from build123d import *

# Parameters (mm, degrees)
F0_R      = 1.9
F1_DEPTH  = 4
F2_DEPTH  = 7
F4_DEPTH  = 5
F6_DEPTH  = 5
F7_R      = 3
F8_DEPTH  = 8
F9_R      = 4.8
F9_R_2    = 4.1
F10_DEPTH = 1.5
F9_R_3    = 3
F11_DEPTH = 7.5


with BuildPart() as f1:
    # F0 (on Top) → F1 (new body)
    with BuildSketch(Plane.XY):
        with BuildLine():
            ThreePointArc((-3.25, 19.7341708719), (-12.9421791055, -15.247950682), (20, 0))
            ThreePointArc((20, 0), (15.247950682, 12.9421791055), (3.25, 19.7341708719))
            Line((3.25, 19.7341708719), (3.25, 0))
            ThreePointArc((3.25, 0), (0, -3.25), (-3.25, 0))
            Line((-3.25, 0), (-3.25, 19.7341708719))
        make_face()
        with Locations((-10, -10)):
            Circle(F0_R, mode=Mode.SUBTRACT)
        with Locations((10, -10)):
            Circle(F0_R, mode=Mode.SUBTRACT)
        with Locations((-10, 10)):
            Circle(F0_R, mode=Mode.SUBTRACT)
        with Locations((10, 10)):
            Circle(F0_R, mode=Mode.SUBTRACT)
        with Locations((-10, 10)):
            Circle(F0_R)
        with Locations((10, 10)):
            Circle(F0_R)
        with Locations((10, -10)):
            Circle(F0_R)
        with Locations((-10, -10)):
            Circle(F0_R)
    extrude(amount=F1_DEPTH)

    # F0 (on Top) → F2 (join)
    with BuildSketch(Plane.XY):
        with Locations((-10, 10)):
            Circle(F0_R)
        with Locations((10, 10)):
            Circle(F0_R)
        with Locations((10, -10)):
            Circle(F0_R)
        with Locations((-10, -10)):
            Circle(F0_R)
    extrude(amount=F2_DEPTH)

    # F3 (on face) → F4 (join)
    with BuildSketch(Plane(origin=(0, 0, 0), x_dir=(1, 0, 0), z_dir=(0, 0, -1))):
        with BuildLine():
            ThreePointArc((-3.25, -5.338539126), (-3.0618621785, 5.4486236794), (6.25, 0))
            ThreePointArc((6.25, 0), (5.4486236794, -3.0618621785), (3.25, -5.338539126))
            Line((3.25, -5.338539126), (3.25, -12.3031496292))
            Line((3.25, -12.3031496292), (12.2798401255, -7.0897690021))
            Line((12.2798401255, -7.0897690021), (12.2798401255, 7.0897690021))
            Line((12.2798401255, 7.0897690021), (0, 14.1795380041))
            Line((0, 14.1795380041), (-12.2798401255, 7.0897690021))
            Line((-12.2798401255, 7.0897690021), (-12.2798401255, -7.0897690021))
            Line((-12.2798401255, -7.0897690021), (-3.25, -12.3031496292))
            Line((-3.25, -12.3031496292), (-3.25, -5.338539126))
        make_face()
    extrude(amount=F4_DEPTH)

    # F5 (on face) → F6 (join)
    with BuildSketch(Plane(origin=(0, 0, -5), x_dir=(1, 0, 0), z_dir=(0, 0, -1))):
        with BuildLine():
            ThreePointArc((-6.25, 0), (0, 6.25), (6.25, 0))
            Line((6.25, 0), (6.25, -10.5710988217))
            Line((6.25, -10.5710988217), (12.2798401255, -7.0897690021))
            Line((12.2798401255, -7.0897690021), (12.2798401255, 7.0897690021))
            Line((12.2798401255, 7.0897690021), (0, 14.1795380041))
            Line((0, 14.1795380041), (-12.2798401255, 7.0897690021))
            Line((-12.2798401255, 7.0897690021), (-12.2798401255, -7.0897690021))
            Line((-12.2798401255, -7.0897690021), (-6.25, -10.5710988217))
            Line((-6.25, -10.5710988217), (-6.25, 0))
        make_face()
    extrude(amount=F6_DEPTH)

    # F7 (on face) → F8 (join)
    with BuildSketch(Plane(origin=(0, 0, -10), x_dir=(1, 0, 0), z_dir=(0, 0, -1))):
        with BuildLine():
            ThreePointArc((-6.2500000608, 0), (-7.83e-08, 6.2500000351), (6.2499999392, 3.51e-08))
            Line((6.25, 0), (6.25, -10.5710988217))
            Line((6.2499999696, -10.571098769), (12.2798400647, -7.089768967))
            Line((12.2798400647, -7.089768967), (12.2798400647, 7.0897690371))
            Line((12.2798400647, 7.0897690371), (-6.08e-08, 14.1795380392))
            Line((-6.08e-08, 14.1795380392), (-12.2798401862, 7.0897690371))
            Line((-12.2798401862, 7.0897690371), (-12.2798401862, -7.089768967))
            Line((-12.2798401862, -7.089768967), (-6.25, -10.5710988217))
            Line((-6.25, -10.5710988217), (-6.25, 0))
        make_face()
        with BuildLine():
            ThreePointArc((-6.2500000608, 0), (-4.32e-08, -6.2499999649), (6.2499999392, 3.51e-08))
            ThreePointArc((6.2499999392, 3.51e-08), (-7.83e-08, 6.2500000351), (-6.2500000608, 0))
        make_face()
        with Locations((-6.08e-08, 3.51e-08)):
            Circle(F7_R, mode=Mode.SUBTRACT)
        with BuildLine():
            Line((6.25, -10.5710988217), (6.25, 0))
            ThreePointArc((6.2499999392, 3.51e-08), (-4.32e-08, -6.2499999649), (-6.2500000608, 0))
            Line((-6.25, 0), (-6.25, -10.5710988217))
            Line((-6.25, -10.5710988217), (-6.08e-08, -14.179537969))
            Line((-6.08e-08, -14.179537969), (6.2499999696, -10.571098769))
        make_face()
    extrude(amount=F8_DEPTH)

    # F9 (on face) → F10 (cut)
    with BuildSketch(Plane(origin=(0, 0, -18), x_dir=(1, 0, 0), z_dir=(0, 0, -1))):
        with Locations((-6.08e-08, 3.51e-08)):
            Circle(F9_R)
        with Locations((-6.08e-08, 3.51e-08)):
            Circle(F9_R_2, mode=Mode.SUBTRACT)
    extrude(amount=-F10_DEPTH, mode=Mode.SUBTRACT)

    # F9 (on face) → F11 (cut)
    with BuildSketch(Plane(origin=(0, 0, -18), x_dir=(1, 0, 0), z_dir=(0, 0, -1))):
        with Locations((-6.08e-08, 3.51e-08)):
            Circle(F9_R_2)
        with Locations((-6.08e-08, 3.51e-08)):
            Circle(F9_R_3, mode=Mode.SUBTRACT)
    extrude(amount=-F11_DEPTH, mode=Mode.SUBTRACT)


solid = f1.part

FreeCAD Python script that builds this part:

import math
import FreeCAD as App
import Part
import Sketcher
Q = App.Units.Quantity

doc = App.newDocument("Part")
body = doc.addObject("PartDesign::Body", "Body")

sketch1 = body.newObject("Sketcher::SketchObject", "Sketch")
sketch1.AttachmentSupport = (doc.getObject("XY_Plane"), [""])
sketch1.MapMode = "FlatFace"
sketch1.addGeometry([
    Part.ArcOfCircle(Part.Circle(App.Vector(0, 0, 0), App.Vector(0, 0, 1), 20), math.radians(99), math.radians(360)),
    Part.ArcOfCircle(Part.Circle(App.Vector(0, 0, 0), App.Vector(0, 0, 1), 20), math.radians(0), math.radians(81)),
    Part.LineSegment(App.Vector(3.2, 19.7, 0), App.Vector(3.2, 0, 0)),
    Part.ArcOfCircle(Part.Circle(App.Vector(0, 0, 0), App.Vector(0, 0, 1), 3.2), math.radians(180), math.radians(360)),
    Part.LineSegment(App.Vector(-3.2, 0, 0), App.Vector(-3.2, 19.7, 0)),
], False)
sketch1.addConstraint([
    Sketcher.Constraint("Tangent", 0, 2, 1, 1),
    Sketcher.Constraint("Coincident", 1, 2, 2, 1),
    Sketcher.Constraint("Tangent", 2, 2, 3, 2),
    Sketcher.Constraint("Tangent", 3, 1, 4, 1),
    Sketcher.Constraint("Coincident", 4, 2, 0, 1),
    Sketcher.Constraint("Vertical", 2),
    Sketcher.Constraint("Vertical", 4),
    Sketcher.Constraint("Coincident", 0, 3, -1, 1),
    Sketcher.Constraint("Coincident", 3, 3, -1, 1),
    Sketcher.Constraint("Equal", 0, 1),
    Sketcher.Constraint("PointOnObject", 0, 2, -1),
    Sketcher.Constraint("Radius", 0, Q("20 mm")),
    Sketcher.Constraint("Radius", 3, Q("3.25 mm")),
])
pad1 = body.newObject("PartDesign::Pad", "Pad")
pad1.Profile = sketch1
pad1.Length = 4

sketch2 = body.newObject("Sketcher::SketchObject", "Sketch001")
sketch2.AttachmentSupport = (doc.getObject("XY_Plane"), [""])
sketch2.MapMode = "FlatFace"
sketch2.addGeometry([
    Part.Circle(App.Vector(-10, 10, 0), App.Vector(0, 0, 1), 1.9),
    Part.Circle(App.Vector(10, 10, 0), App.Vector(0, 0, 1), 1.9),
    Part.Circle(App.Vector(10, -10, 0), App.Vector(0, 0, 1), 1.9),
    Part.Circle(App.Vector(-10, -10, 0), App.Vector(0, 0, 1), 1.9),
], False)
sketch2.addConstraint([
    Sketcher.Constraint("Equal", 0, 1),
    Sketcher.Constraint("Equal", 1, 2),
    Sketcher.Constraint("Equal", 2, 3),
    Sketcher.Constraint("Symmetric", 0, 3, 2, 3, -1, 1),
    Sketcher.Constraint("Symmetric", 1, 3, 3, 3, -1, 1),
    Sketcher.Constraint("Symmetric", 0, 3, 1, 3, -2),
    Sketcher.Constraint("Diameter", 0, Q("3.8 mm")),
    Sketcher.Constraint("DistanceX", 0, 3, -1, 1, Q("10 mm")),
    Sketcher.Constraint("DistanceY", -1, 1, 0, 3, Q("10 mm")),
])
pad2 = body.newObject("PartDesign::Pad", "Pad001")
pad2.Profile = sketch2
pad2.Length = 7

sketch3 = body.newObject("Sketcher::SketchObject", "Sketch002")
sketch3.AttachmentSupport = (doc.getObject("XY_Plane"), [""])
sketch3.MapMode = "FlatFace"
sketch3.addGeometry([
    Part.ArcOfCircle(Part.Circle(App.Vector(0, 0, 0), App.Vector(0, 0, 1), 6), math.radians(121), math.radians(360)),
    Part.ArcOfCircle(Part.Circle(App.Vector(0, 0, 0), App.Vector(0, 0, 1), 6), math.radians(0), math.radians(59)),
    Part.LineSegment(App.Vector(3, 5, 0), App.Vector(3, 12, 0)),
    Part.LineSegment(App.Vector(3, 12, 0), App.Vector(12, 7, 0)),
    Part.LineSegment(App.Vector(12, 7, 0), App.Vector(12, -7, 0)),
    Part.LineSegment(App.Vector(12, -7, 0), App.Vector(0, -14, 0)),
    Part.LineSegment(App.Vector(0, -14, 0), App.Vector(-12, -7, 0)),
    Part.LineSegment(App.Vector(-12, -7, 0), App.Vector(-12, 7, 0)),
    Part.LineSegment(App.Vector(-12, 7, 0), App.Vector(-3, 12, 0)),
    Part.LineSegment(App.Vector(-3, 12, 0), App.Vector(-3, 5, 0)),
], False)
sketch3.addConstraint([
    Sketcher.Constraint("Tangent", 0, 2, 1, 1),
    Sketcher.Constraint("Coincident", 1, 2, 2, 1),
    Sketcher.Constraint("Coincident", 2, 2, 3, 1),
    Sketcher.Constraint("Coincident", 3, 2, 4, 1),
    Sketcher.Constraint("Coincident", 4, 2, 5, 1),
    Sketcher.Constraint("Coincident", 5, 2, 6, 1),
    Sketcher.Constraint("Coincident", 6, 2, 7, 1),
    Sketcher.Constraint("Coincident", 7, 2, 8, 1),
    Sketcher.Constraint("Coincident", 8, 2, 9, 1),
    Sketcher.Constraint("Coincident", 9, 2, 0, 1),
    Sketcher.Constraint("Vertical", 2),
    Sketcher.Constraint("Vertical", 4),
    Sketcher.Constraint("Vertical", 7),
    Sketcher.Constraint("Vertical", 9),
    Sketcher.Constraint("Coincident", 0, 3, -1, 1),
    Sketcher.Constraint("Equal", 0, 1),
    Sketcher.Constraint("Symmetric", 3, 2, 6, 2, -1, 1),
    Sketcher.Constraint("Symmetric", 2, 2, 8, 2, -2),
    Sketcher.Constraint("PointOnObject", 0, 2, -1),
    Sketcher.Constraint("PointOnObject", 5, 2, -2),
    Sketcher.Constraint("Parallel", 3, 6),
    Sketcher.Constraint("Parallel", 5, 8),
    Sketcher.Constraint("Horizontal", 4, 2, 6, 2),
    Sketcher.Constraint("Angle", 3, Q("-30 deg")),
    Sketcher.Constraint("Radius", 0, Q("6.25 mm")),
    Sketcher.Constraint("DistanceX", 1, 2, 0, 2, Q("3 mm")),
    Sketcher.Constraint("DistanceY", 2, 1, 2, 2, Q("6.964611 mm")),
    Sketcher.Constraint("DistanceY", 4, 2, 4, 1, Q("14.179538 mm")),
])
pad3 = body.newObject("PartDesign::Pad", "Pad002")
pad3.Profile = sketch3
pad3.Length = 5
pad3.Reversed = True

sketch4 = body.newObject("Sketcher::SketchObject", "Sketch003")
sketch4.AttachmentSupport = (doc.getObject("XY_Plane"), [""])
sketch4.MapMode = "FlatFace"
sketch4.AttachmentOffset = App.Placement(App.Vector(0, 0, -5), App.Rotation())
sketch4.addGeometry([
    Part.ArcOfCircle(Part.Circle(App.Vector(0, 0, 0), App.Vector(0, 0, 1), 6), math.radians(180), math.radians(360)),
    Part.LineSegment(App.Vector(6, 0, 0), App.Vector(6, 11, 0)),
    Part.LineSegment(App.Vector(6, 11, 0), App.Vector(12, 7, 0)),
    Part.LineSegment(App.Vector(12, 7, 0), App.Vector(12, -7, 0)),
    Part.LineSegment(App.Vector(12, -7, 0), App.Vector(0, -14, 0)),
    Part.LineSegment(App.Vector(0, -14, 0), App.Vector(-12, -7, 0)),
    Part.LineSegment(App.Vector(-12, -7, 0), App.Vector(-12, 7, 0)),
    Part.LineSegment(App.Vector(-12, 7, 0), App.Vector(-6, 11, 0)),
    Part.LineSegment(App.Vector(-6, 11, 0), App.Vector(-6, 0, 0)),
], False)
sketch4.addConstraint([
    Sketcher.Constraint("Tangent", 0, 2, 1, 1),
    Sketcher.Constraint("Coincident", 1, 2, 2, 1),
    Sketcher.Constraint("Coincident", 2, 2, 3, 1),
    Sketcher.Constraint("Coincident", 3, 2, 4, 1),
    Sketcher.Constraint("Coincident", 4, 2, 5, 1),
    Sketcher.Constraint("Coincident", 5, 2, 6, 1),
    Sketcher.Constraint("Coincident", 6, 2, 7, 1),
    Sketcher.Constraint("Coincident", 7, 2, 8, 1),
    Sketcher.Constraint("Tangent", 8, 2, 0, 1),
    Sketcher.Constraint("Vertical", 1),
    Sketcher.Constraint("Vertical", 3),
    Sketcher.Constraint("Vertical", 6),
    Sketcher.Constraint("Vertical", 8),
    Sketcher.Constraint("Coincident", 0, 3, -1, 1),
    Sketcher.Constraint("Symmetric", 2, 2, 5, 2, -1, 1),
    Sketcher.Constraint("PointOnObject", 4, 2, -2),
    Sketcher.Constraint("Parallel", 2, 5),
    Sketcher.Constraint("Parallel", 4, 7),
    Sketcher.Constraint("Horizontal", 3, 2, 5, 2),
    Sketcher.Constraint("Horizontal", 2, 2, 6, 2),
    Sketcher.Constraint("Angle", 2, Q("-30 deg")),
    Sketcher.Constraint("Radius", 0, Q("6.25 mm")),
    Sketcher.Constraint("DistanceY", 1, 1, 1, 2, Q("10.571099 mm")),
    Sketcher.Constraint("DistanceY", 3, 2, 3, 1, Q("14.179538 mm")),
])
pad4 = body.newObject("PartDesign::Pad", "Pad003")
pad4.Profile = sketch4
pad4.Length = 5
pad4.Reversed = True

sketch5 = body.newObject("Sketcher::SketchObject", "Sketch004")
sketch5.AttachmentSupport = (doc.getObject("XY_Plane"), [""])
sketch5.MapMode = "FlatFace"
sketch5.AttachmentOffset = App.Placement(App.Vector(0, 0, -10), App.Rotation())
sketch5.addGeometry([
    Part.LineSegment(App.Vector(6.2, 10.6, 0), App.Vector(12.3, 7.1, 0)),
    Part.LineSegment(App.Vector(12.3, 7.1, 0), App.Vector(12.3, -7.1, 0)),
    Part.LineSegment(App.Vector(12.3, -7.1, 0), App.Vector(0, -14.2, 0)),
    Part.LineSegment(App.Vector(0, -14.2, 0), App.Vector(-12.3, -7.1, 0)),
    Part.LineSegment(App.Vector(-12.3, -7.1, 0), App.Vector(-12.3, 7.1, 0)),
    Part.LineSegment(App.Vector(-12.3, 7.1, 0), App.Vector(-6.2, 10.6, 0)),
    Part.LineSegment(App.Vector(-6.2, 10.6, 0), App.Vector(0, 14.2, 0)),
    Part.LineSegment(App.Vector(0, 14.2, 0), App.Vector(6.2, 10.6, 0)),
    Part.Circle(App.Vector(0, 0, 0), App.Vector(0, 0, 1), 3),
], False)
sketch5.addConstraint([
    Sketcher.Constraint("Coincident", 0, 2, 1, 1),
    Sketcher.Constraint("Coincident", 1, 2, 2, 1),
    Sketcher.Constraint("Coincident", 2, 2, 3, 1),
    Sketcher.Constraint("Coincident", 3, 2, 4, 1),
    Sketcher.Constraint("Coincident", 4, 2, 5, 1),
    Sketcher.Constraint("Coincident", 5, 2, 6, 1),
    Sketcher.Constraint("Coincident", 6, 2, 7, 1),
    Sketcher.Constraint("Coincident", 7, 2, 0, 1),
    Sketcher.Constraint("Vertical", 1),
    Sketcher.Constraint("Vertical", 4),
    Sketcher.Constraint("Coincident", 8, 3, -1, 1),
    Sketcher.Constraint("Symmetric", 0, 2, 3, 2, -1, 1),
    Sketcher.Constraint("Symmetric", 2, 2, 6, 2, -1, 1),
    Sketcher.Constraint("Symmetric", 5, 2, 7, 2, -2),
    Sketcher.Constraint("PointOnObject", 2, 2, -2),
    Sketcher.Constraint("Parallel", 0, 3),
    Sketcher.Constraint("Parallel", 2, 5),
    Sketcher.Constraint("Parallel", 5, 6),
    Sketcher.Constraint("Diameter", 8, Q("6 mm")),
    Sketcher.Constraint("Angle", 0, Q("-30 deg")),
    Sketcher.Constraint("DistanceX", 5, 2, 7, 2, Q("12.5 mm")),
    Sketcher.Constraint("DistanceY", 1, 2, 1, 1, Q("14.179538 mm")),
    Sketcher.Constraint("DistanceY", -1, 1, 5, 2, Q("10.571099 mm")),
])
pad5 = body.newObject("PartDesign::Pad", "Pad004")
pad5.Profile = sketch5
pad5.Length = 8
pad5.Reversed = True

sketch6 = body.newObject("Sketcher::SketchObject", "Sketch005")
sketch6.AttachmentSupport = (doc.getObject("XY_Plane"), [""])
sketch6.MapMode = "FlatFace"
sketch6.AttachmentOffset = App.Placement(App.Vector(0, 0, -18), App.Rotation())
sketch6.addGeometry([
    Part.Circle(App.Vector(0, 0, 0), App.Vector(0, 0, 1), 4.8),
    Part.Circle(App.Vector(0, 0, 0), App.Vector(0, 0, 1), 4.1),
], False)
sketch6.addConstraint([
    Sketcher.Constraint("Coincident", 0, 3, -1, 1),
    Sketcher.Constraint("Coincident", 1, 3, -1, 1),
    Sketcher.Constraint("Diameter", 0, Q("9.6 mm")),
    Sketcher.Constraint("Diameter", 1, Q("8.2 mm")),
])
pocket1 = body.newObject("PartDesign::Pocket", "Pocket")
pocket1.Profile = sketch6
pocket1.Length = 1.5
pocket1.Reversed = True

sketch7 = body.newObject("Sketcher::SketchObject", "Sketch006")
sketch7.AttachmentSupport = (doc.getObject("XY_Plane"), [""])
sketch7.MapMode = "FlatFace"
sketch7.AttachmentOffset = App.Placement(App.Vector(0, 0, -18), App.Rotation())
sketch7.addGeometry([
    Part.Circle(App.Vector(0, 0, 0), App.Vector(0, 0, 1), 4.1),
    Part.Circle(App.Vector(0, 0, 0), App.Vector(0, 0, 1), 3),
], False)
sketch7.addConstraint([
    Sketcher.Constraint("Coincident", 0, 3, -1, 1),
    Sketcher.Constraint("Coincident", 1, 3, -1, 1),
    Sketcher.Constraint("Diameter", 1, Q("6 mm")),
    Sketcher.Constraint("Diameter", 0, Q("8.2 mm")),
])
pocket2 = body.newObject("PartDesign::Pocket", "Pocket001")
pocket2.Profile = sketch7
pocket2.Length = 7.5
pocket2.Reversed = True

doc.recompute()
